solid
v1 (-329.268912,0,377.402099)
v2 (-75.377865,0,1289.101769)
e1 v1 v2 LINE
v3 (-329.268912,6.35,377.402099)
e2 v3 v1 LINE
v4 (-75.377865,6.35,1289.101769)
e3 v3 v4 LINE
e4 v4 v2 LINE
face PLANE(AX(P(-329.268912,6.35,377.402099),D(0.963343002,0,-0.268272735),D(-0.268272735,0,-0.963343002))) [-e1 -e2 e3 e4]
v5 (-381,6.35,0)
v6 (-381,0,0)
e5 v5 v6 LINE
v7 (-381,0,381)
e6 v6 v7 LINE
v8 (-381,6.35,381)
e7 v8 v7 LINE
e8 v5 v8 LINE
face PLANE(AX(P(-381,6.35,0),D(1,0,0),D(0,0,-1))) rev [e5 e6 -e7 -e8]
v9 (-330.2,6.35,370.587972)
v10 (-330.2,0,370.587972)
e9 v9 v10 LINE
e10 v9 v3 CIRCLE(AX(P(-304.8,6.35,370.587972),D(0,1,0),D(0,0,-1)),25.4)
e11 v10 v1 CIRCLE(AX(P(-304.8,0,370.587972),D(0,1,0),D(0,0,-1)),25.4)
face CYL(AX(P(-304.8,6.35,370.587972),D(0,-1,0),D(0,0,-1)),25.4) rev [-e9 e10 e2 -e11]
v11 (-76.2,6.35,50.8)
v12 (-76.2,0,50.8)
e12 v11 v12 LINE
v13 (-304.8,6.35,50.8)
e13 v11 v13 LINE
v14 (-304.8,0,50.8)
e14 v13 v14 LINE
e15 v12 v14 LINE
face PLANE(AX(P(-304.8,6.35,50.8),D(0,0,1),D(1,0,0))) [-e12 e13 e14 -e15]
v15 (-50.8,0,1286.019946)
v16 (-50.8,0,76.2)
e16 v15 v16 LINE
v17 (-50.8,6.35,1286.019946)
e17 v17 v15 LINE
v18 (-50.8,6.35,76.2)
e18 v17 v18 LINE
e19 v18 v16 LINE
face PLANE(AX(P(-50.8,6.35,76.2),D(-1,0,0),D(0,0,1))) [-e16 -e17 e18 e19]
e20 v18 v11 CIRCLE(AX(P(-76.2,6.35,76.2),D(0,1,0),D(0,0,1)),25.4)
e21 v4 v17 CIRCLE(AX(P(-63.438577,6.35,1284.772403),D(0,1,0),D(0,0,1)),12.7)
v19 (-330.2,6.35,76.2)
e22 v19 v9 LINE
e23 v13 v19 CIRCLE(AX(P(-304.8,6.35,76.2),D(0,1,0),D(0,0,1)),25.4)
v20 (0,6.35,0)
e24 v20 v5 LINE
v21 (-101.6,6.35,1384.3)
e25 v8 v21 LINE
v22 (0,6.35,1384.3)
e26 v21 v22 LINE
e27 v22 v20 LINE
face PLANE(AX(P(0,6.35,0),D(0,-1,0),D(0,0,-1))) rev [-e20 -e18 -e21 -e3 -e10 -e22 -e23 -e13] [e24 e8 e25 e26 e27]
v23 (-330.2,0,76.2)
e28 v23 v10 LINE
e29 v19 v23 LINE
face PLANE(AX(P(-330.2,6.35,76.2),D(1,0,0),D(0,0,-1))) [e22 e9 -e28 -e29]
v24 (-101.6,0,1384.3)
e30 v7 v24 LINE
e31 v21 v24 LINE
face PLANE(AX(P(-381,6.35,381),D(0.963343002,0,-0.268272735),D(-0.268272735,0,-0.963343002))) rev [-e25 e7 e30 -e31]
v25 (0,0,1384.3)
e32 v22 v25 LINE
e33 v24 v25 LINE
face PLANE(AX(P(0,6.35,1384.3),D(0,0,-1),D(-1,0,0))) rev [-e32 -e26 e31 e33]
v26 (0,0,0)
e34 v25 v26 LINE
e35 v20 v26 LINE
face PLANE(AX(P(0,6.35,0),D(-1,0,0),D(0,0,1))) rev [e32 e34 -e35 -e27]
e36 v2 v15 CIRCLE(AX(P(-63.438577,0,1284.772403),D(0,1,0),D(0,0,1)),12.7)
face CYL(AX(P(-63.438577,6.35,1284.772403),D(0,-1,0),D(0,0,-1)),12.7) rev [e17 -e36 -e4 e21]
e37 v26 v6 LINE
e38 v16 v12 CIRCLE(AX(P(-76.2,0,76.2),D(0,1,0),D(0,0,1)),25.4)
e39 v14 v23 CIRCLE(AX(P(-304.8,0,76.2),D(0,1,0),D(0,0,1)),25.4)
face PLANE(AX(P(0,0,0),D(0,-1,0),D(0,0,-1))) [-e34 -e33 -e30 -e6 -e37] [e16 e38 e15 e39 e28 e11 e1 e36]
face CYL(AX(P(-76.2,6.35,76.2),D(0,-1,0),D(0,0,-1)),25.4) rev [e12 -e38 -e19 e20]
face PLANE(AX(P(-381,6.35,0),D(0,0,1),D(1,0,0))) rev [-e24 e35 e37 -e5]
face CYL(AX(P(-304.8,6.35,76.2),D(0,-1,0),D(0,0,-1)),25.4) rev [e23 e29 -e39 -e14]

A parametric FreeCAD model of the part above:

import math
import FreeCAD as App
import Part
import Sketcher
Q = App.Units.Quantity

doc = App.newDocument("Part")
body = doc.addObject("PartDesign::Body", "Body")

sketch1 = doc.addObject("Sketcher::SketchObject", "Sketch")
body.addObject(sketch1)
sketch1.AttachmentSupport = (doc.XZ_Plane, [""])
sketch1.MapMode = "FlatFace"
sketch1.addGeometry([
    Part.LineSegment(App.Vector(0, 1384.3, 0), App.Vector(0, 0, 0)),
    Part.LineSegment(App.Vector(0, 0, 0), App.Vector(-381, 0, 0)),
    Part.LineSegment(App.Vector(-381, 0, 0), App.Vector(-381, 381, 0)),
    Part.LineSegment(App.Vector(-381, 381, 0), App.Vector(-101.6, 1384.3, 0)),
    Part.LineSegment(App.Vector(-101.6, 1384.3, 0), App.Vector(0, 1384.3, 0)),
    Part.ArcOfCircle(Part.Circle(App.Vector(-304.8, 370.587972, 0), App.Vector(0, 0, 1), 25.4), math.radians(164.43849), math.radians(180)),
    Part.LineSegment(App.Vector(-330.2, 370.587972, 0), App.Vector(-330.2, 76.2, 0)),
    Part.ArcOfCircle(Part.Circle(App.Vector(-304.8, 76.2, 0), App.Vector(0, 0, 1), 25.4), math.radians(180), math.radians(270)),
    Part.LineSegment(App.Vector(-304.8, 50.8, 0), App.Vector(-76.2, 50.8, 0)),
    Part.ArcOfCircle(Part.Circle(App.Vector(-76.2, 76.2, 0), App.Vector(0, 0, 1), 25.4), math.radians(-90), math.radians(0)),
    Part.LineSegment(App.Vector(-50.8, 76.2, 0), App.Vector(-50.8, 1286.019946, 0)),
    Part.ArcOfCircle(Part.Circle(App.Vector(-63.438577, 1284.772403, 0), App.Vector(0, 0, 1), 12.7), math.radians(5.637355), math.radians(160.068592)),
    Part.LineSegment(App.Vector(-75.377865, 1289.101769, 0), App.Vector(-329.268912, 377.402099, 0)),
], False)
sketch1.addConstraint([
    Sketcher.Constraint("Coincident", 0, 2, 1, 1),
    Sketcher.Constraint("Coincident", 1, 2, 2, 1),
    Sketcher.Constraint("Coincident", 2, 2, 3, 1),
    Sketcher.Constraint("Coincident", 3, 2, 4, 1),
    Sketcher.Constraint("Coincident", 4, 2, 0, 1),
    Sketcher.Constraint("Tangent", 5, 2, 6, 1),
    Sketcher.Constraint("Tangent", 6, 2, 7, 1),
    Sketcher.Constraint("Tangent", 7, 2, 8, 1),
    Sketcher.Constraint("Tangent", 8, 2, 9, 1),
    Sketcher.Constraint("Tangent", 9, 2, 10, 1),
    Sketcher.Constraint("Coincident", 10, 2, 11, 1),
    Sketcher.Constraint("Coincident", 11, 2, 12, 1),
    Sketcher.Constraint("Tangent", 12, 2, 5, 1),
    Sketcher.Constraint("Vertical", 0),
    Sketcher.Constraint("Horizontal", 1),
    Sketcher.Constraint("Vertical", 2),
    Sketcher.Constraint("Horizontal", 4),
    Sketcher.Constraint("Vertical", 6),
    Sketcher.Constraint("Horizontal", 8),
    Sketcher.Constraint("Vertical", 10),
    Sketcher.Constraint("Coincident", 0, 2, -1, 1),
    Sketcher.Constraint("Equal", 5, 7),
    Sketcher.Constraint("Equal", 7, 9),
    Sketcher.Constraint("Parallel", 3, 12),
    Sketcher.Constraint("Equal", 1, 2),
    Sketcher.Constraint("Radius", 5, Q("1 in")),
    Sketcher.Constraint("Radius", 11, Q("0.5 in")),
    Sketcher.Constraint("DistanceX", 1, 2, 1, 1, Q("15 in")),
    Sketcher.Constraint("DistanceX", 4, 1, 4, 2, Q("4 in")),
    Sketcher.Constraint("DistanceX", 8, 1, 8, 2, Q("9 in")),
    Sketcher.Constraint("DistanceY", 0, 2, 0, 1, Q("54.5 in")),
    Sketcher.Constraint("DistanceX", 5, 3, -1, 1, Q("12 in")),
    Sketcher.Constraint("DistanceY", -1, 1, 7, 3, Q("3 in")),
    Sketcher.Constraint("DistanceY", 6, 2, 6, 1, Q("294.387972 mm")),
    Sketcher.Constraint("DistanceY", 10, 1, 10, 2, Q("1209.819946 mm")),
    Sketcher.Constraint("DistanceY", -1, 1, 11, 2, Q("1289.101769 mm")),
])
pad1 = doc.addObject("PartDesign::Pad", "Pad")
body.addObject(pad1)
pad1.Profile = sketch1
pad1.Length = Q("0.25 in")
pad1.Reversed = True

doc.recompute()
